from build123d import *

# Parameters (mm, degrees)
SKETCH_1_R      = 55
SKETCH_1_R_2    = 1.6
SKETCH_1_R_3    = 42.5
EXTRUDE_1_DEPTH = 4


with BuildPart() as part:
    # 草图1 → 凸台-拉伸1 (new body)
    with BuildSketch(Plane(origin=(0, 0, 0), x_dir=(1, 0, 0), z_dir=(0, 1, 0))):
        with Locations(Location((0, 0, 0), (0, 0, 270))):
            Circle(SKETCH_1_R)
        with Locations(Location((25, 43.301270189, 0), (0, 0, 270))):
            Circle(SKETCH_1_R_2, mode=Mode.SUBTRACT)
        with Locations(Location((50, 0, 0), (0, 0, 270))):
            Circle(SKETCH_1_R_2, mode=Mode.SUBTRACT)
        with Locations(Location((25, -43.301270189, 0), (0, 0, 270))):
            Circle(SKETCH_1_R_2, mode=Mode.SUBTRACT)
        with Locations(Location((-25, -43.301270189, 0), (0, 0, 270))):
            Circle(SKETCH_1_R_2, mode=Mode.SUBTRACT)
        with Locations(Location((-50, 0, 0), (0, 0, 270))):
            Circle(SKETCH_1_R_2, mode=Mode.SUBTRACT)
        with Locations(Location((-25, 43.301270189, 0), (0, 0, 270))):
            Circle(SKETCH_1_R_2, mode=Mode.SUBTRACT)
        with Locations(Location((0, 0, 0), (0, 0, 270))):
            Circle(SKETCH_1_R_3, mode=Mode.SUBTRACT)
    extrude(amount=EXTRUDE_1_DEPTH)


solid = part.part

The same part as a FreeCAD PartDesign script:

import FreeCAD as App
import Part
import Sketcher
from FreeCAD import Vector

doc = App.newDocument("Part")
body = doc.addObject("PartDesign::Body", "Body")

sketch1 = body.newObject("Sketcher::SketchObject", "Sketch")
sketch1.AttachmentSupport = (doc.getObject("XZ_Plane"), [""])
sketch1.MapMode = "FlatFace"
sketch1.addGeometry([
    Part.Circle(Vector(0, 0, 0), Vector(0, 0, 1), 55),
    Part.Circle(Vector(-25, -43.30127, 0), Vector(0, 0, 1), 1.6),
    Part.Circle(Vector(-50, 0, 0), Vector(0, 0, 1), 1.6),
    Part.Circle(Vector(-25, 43.30127, 0), Vector(0, 0, 1), 1.6),
    Part.Circle(Vector(25, -43.30127, 0), Vector(0, 0, 1), 1.6),
    Part.Circle(Vector(50, 0, 0), Vector(0, 0, 1), 1.6),
    Part.Circle(Vector(0, 0, 0), Vector(0, 0, 1), 42.5),
    Part.Circle(Vector(25, 43.30127, 0), Vector(0, 0, 1), 1.6),
], False)
sketch1.addConstraint([
    Sketcher.Constraint("Coincident", 0, 3, -1, 1),
    Sketcher.Constraint("Coincident", 6, 3, -1, 1),
    Sketcher.Constraint("Equal", 1, 2),
    Sketcher.Constraint("Equal", 2, 3),
    Sketcher.Constraint("Equal", 3, 4),
    Sketcher.Constraint("Equal", 4, 5),
    Sketcher.Constraint("Equal", 5, 7),
    Sketcher.Constraint("Symmetric", 3, 3, 4, 3, -1, 1),
    Sketcher.Constraint("Symmetric", 2, 3, 5, 3, -1, 1),
    Sketcher.Constraint("Symmetric", 1, 3, 7, 3, -1, 1),
    Sketcher.Constraint("Symmetric", 1, 3, 4, 3, -2),
    Sketcher.Constraint("PointOnObject", 2, 3, -1),
    Sketcher.Constraint("Diameter", 0, 110.0),
    Sketcher.Constraint("Diameter", 6, 85.0),
    Sketcher.Constraint("Diameter", 1, 3.2),
    Sketcher.Constraint("DistanceX", 1, 3, -1, 1, 25.0),
    Sketcher.Constraint("DistanceX", 2, 3, -1, 1, 50.0),
    Sketcher.Constraint("DistanceY", 1, 3, -1, 1, 43.30127),
])
pad1 = body.newObject("PartDesign::Pad", "Pad")
pad1.Profile = sketch1
pad1.Length = 4
pad1.Reversed = True

doc.recompute()
